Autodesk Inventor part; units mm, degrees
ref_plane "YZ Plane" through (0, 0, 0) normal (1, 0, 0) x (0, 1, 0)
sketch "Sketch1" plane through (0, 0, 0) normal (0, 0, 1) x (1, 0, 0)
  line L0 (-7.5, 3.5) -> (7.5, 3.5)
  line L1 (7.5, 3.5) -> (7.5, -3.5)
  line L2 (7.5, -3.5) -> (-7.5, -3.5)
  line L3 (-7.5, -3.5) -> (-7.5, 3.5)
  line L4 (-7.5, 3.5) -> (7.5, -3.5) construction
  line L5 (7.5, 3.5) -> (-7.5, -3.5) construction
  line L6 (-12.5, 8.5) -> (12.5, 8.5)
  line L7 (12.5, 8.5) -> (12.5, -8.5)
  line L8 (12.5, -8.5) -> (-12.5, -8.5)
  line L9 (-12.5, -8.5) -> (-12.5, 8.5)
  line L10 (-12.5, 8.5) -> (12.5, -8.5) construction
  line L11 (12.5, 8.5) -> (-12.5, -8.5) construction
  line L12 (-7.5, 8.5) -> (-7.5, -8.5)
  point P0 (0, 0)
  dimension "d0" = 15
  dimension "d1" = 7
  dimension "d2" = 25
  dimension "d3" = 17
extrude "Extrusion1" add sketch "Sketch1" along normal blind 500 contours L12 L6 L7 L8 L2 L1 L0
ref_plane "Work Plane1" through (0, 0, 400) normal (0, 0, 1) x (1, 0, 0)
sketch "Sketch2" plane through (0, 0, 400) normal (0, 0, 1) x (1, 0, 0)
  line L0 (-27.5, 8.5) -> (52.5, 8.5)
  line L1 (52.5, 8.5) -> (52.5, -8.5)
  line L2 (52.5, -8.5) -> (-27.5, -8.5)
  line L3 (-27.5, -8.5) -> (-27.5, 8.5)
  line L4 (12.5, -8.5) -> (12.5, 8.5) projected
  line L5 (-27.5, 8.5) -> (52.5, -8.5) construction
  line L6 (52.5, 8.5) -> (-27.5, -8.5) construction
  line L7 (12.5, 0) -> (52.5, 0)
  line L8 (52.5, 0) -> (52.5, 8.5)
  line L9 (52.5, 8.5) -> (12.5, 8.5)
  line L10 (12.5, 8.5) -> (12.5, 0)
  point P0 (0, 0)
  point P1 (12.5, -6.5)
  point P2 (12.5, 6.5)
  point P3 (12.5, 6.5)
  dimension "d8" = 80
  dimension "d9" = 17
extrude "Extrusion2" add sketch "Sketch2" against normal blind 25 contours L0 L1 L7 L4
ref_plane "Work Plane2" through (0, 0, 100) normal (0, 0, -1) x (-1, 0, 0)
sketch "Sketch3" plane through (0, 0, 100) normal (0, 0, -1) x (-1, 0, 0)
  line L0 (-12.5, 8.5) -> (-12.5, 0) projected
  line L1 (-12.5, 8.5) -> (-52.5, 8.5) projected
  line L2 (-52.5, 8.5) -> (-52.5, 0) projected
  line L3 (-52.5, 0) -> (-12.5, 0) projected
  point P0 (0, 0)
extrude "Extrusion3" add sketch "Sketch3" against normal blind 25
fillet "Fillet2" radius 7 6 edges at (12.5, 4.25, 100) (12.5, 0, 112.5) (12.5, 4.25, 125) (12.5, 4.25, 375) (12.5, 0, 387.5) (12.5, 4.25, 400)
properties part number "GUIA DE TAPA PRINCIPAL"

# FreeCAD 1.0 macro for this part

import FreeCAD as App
import Part
import Sketcher

V = App.Vector
Q = App.Units.Quantity


def edges_at(feature, points):
    """Names of the edges that pass closest to the given points."""
    edges = feature.Shape.Edges
    near = lambda p: min(range(len(edges)), key=lambda i: edges[i].distToShape(Part.Vertex(*p))[0])
    return sorted({f"Edge{near(p) + 1}" for p in points})


def add_polygon(sketch, points):
    """Adds a closed chain of lines whose ends are joined by coincident constraints."""
    first, n = sketch.GeometryCount, len(points)
    for a, b in zip(points, points[1:] + points[:1]):
        sketch.addGeometry(Part.LineSegment(App.Vector(*a, 0), App.Vector(*b, 0)), False)
    for i in range(n):
        sketch.addConstraint(Sketcher.Constraint("Coincident", first + i, 2, first + (i + 1) % n, 1))

doc = App.newDocument("Part")
body = doc.addObject("PartDesign::Body", "Body")

# Sketch on XY plane
sketch1 = body.newObject("Sketcher::SketchObject", "Sketch")
sketch1.AttachmentSupport = (doc.getObject("XY_Plane"), [""])
sketch1.MapMode = "FlatFace"
add_polygon(sketch1, [(-8, 8), (-8, 4), (8, 4), (8, -4), (-8, -4), (-8, -8), (12, -8), (12, 8)])  # lines 0-7
sketch1.addConstraint([
    Sketcher.Constraint("Vertical", 0),
    Sketcher.Constraint("Horizontal", 1),
    Sketcher.Constraint("Vertical", 2),
    Sketcher.Constraint("Horizontal", 3),
    Sketcher.Constraint("Vertical", 4),
    Sketcher.Constraint("Horizontal", 5),
    Sketcher.Constraint("Vertical", 6),
    Sketcher.Constraint("Horizontal", 7),
    Sketcher.Constraint("Symmetric", 0, 2, 2, 2, -1, 1),
    Sketcher.Constraint("Symmetric", 4, 2, 7, 2, -1),
    Sketcher.Constraint("DistanceX", 1, 1, 1, 2, Q("15 mm")),
    Sketcher.Constraint("DistanceY", 2, 2, 2, 1, Q("7 mm")),
    Sketcher.Constraint("DistanceY", 6, 1, 6, 2, Q("17 mm")),
    Sketcher.Constraint("DistanceX", 5, 1, 5, 2, Q("20 mm")),
])
pad1 = body.newObject("PartDesign::Pad", "Pad")
pad1.Profile = sketch1
pad1.Length = 500

# Sketch on XY plane
sketch2 = body.newObject("Sketcher::SketchObject", "Sketch001")
sketch2.AttachmentSupport = (doc.getObject("XY_Plane"), [""])
sketch2.MapMode = "FlatFace"
sketch2.AttachmentOffset = App.Placement(V(0, 0, 400), App.Rotation())
add_polygon(sketch2, [(52, 8), (12, 8), (12, 0), (52, 0)])  # lines 0-3
sketch2.addConstraint([
    Sketcher.Constraint("Horizontal", 0),
    Sketcher.Constraint("Vertical", 1),
    Sketcher.Constraint("Horizontal", 2),
    Sketcher.Constraint("Vertical", 3),
    Sketcher.Constraint("PointOnObject", 1, 2, -1),
    Sketcher.Constraint("DistanceX", 0, 2, 0, 1, Q("40 mm")),
    Sketcher.Constraint("DistanceY", 1, 2, 1, 1, Q("8.5 mm")),
    Sketcher.Constraint("DistanceX", -1, 1, 0, 2, Q("12.5 mm")),
])
pad2 = body.newObject("PartDesign::Pad", "Pad001")
pad2.Profile = sketch2
pad2.Length = 25
pad2.Reversed = True

# Sketch on XY plane
sketch3 = body.newObject("Sketcher::SketchObject", "Sketch002")
sketch3.AttachmentSupport = (doc.getObject("XY_Plane"), [""])
sketch3.MapMode = "FlatFace"
sketch3.AttachmentOffset = App.Placement(V(0, 0, 100), App.Rotation())
add_polygon(sketch3, [(12, 0), (12, 8), (52, 8), (52, 0)])  # lines 0-3
sketch3.addConstraint([
    Sketcher.Constraint("Vertical", 0),
    Sketcher.Constraint("Horizontal", 1),
    Sketcher.Constraint("Vertical", 2),
    Sketcher.Constraint("Horizontal", 3),
    Sketcher.Constraint("PointOnObject", 2, 2, -1),
    Sketcher.Constraint("DistanceX", 1, 1, 1, 2, Q("40 mm")),
    Sketcher.Constraint("DistanceY", 0, 1, 0, 2, Q("8.5 mm")),
    Sketcher.Constraint("DistanceX", -1, 1, 0, 2, Q("12.5 mm")),
])
pad3 = body.newObject("PartDesign::Pad", "Pad002")
pad3.Profile = sketch3
pad3.Length = 25
doc.recompute()

fillet = body.newObject("PartDesign::Fillet", "Fillet")
fillet.Base = (pad3, edges_at(pad3, [
    (12.5, 4.25, 100),
    (12.5, 0, 112.5),
    (12.5, 4.25, 125),
    (12.5, 4.25, 375),
    (12.5, 0, 387.5),
    (12.5, 4.25, 400),
]))
fillet.Radius = 7

doc.recompute()
